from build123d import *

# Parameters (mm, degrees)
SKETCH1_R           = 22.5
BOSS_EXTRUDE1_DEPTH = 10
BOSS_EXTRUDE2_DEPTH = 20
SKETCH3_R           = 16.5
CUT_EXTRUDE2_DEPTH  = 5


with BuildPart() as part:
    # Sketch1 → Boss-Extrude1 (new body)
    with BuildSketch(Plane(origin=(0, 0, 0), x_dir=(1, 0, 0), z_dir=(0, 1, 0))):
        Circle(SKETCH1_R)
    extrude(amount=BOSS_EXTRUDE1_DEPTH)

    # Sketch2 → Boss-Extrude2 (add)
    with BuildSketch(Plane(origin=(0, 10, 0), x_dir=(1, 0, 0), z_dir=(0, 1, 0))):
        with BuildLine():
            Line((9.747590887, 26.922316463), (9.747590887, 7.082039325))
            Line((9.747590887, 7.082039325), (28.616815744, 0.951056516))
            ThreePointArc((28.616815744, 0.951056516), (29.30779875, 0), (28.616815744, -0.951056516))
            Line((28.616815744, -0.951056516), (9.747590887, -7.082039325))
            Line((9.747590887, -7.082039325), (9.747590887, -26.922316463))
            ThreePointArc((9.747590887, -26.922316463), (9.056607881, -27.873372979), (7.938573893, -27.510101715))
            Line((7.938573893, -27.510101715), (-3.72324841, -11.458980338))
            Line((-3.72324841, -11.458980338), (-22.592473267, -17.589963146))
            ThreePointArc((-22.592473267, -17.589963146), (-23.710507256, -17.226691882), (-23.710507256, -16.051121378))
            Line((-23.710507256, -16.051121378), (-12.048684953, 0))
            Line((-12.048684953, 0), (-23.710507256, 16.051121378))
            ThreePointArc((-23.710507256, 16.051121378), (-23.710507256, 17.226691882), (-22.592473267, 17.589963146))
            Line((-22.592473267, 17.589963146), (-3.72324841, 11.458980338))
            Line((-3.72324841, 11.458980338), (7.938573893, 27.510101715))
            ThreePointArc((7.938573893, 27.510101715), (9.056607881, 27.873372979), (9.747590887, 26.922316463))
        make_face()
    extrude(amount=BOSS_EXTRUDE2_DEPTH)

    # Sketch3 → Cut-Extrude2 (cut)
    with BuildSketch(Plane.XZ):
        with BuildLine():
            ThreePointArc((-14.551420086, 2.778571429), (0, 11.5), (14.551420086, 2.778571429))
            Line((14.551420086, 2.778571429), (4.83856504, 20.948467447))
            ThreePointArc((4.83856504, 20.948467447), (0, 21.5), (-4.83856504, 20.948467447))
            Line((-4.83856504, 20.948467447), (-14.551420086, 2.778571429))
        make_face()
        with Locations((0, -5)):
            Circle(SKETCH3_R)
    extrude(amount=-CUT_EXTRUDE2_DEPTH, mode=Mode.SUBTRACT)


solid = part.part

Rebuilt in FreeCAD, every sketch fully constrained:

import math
import FreeCAD as App
import Part
import Sketcher
Q = App.Units.Quantity

doc = App.newDocument("Part")
body = doc.addObject("PartDesign::Body", "Body")

# Sketch on XZ plane
sketch1 = body.newObject("Sketcher::SketchObject", "Sketch")
sketch1.AttachmentSupport = (doc.getObject("XZ_Plane"), [""])
sketch1.MapMode = "FlatFace"
sketch1.addGeometry(Part.Circle(App.Vector(0, 0, 0), App.Vector(0, 0, 1), 22.5), False)
sketch1.addConstraint([
    Sketcher.Constraint("Coincident", 0, 3, -1, 1),
    Sketcher.Constraint("Diameter", 0, Q("45 mm")),
])
pad1 = body.newObject("PartDesign::Pad", "Pad")
pad1.Profile = sketch1
pad1.Length = 10
pad1.Reversed = True

# Sketch on XZ plane
sketch2 = body.newObject("Sketcher::SketchObject", "Sketch001")
sketch2.AttachmentSupport = (doc.getObject("XZ_Plane"), [""])
sketch2.MapMode = "FlatFace"
sketch2.AttachmentOffset = App.Placement(App.Vector(0, 0, -10), App.Rotation())
sketch2.addGeometry([
    Part.LineSegment(App.Vector(9.747591, -7.082039, 0), App.Vector(9.747591, -26.922316, 0)),  # 0
    Part.ArcOfCircle(Part.Circle(App.Vector(8.747591, -26.922316, 0), App.Vector(0, 0, 1), 1), math.radians(-144), math.radians(0)),  # 1
    Part.LineSegment(App.Vector(7.938574, -27.510102, 0), App.Vector(-3.723248, -11.45898, 0)),  # 2
    Part.LineSegment(App.Vector(-3.723248, -11.45898, 0), App.Vector(-22.592473, -17.589963, 0)),  # 3
    Part.ArcOfCircle(Part.Circle(App.Vector(-22.90149, -16.638907, 0), App.Vector(0, 0, 1), 1), math.radians(144), math.radians(288)),  # 4
    Part.LineSegment(App.Vector(-23.710507, -16.051121, 0), App.Vector(-12.048685, 0, 0)),  # 5
    Part.LineSegment(App.Vector(-12.048685, 0, 0), App.Vector(-23.710507, 16.051121, 0)),  # 6
    Part.ArcOfCircle(Part.Circle(App.Vector(-22.90149, 16.638907, 0), App.Vector(0, 0, 1), 1), math.radians(72), math.radians(216)),  # 7
    Part.LineSegment(App.Vector(-22.592473, 17.589963, 0), App.Vector(-3.723248, 11.45898, 0)),  # 8
    Part.LineSegment(App.Vector(-3.723248, 11.45898, 0), App.Vector(7.938574, 27.510102, 0)),  # 9
    Part.ArcOfCircle(Part.Circle(App.Vector(8.747591, 26.922316, 0), App.Vector(0, 0, 1), 1), math.radians(0), math.radians(144)),  # 10
    Part.LineSegment(App.Vector(9.747591, 26.922316, 0), App.Vector(9.747591, 7.082039, 0)),  # 11
    Part.LineSegment(App.Vector(9.747591, 7.082039, 0), App.Vector(28.616816, 0.951057, 0)),  # 12
    Part.ArcOfCircle(Part.Circle(App.Vector(28.307799, 0, 0), App.Vector(0, 0, 1), 1), math.radians(-72), math.radians(72)),  # 13
    Part.LineSegment(App.Vector(28.616816, -0.951057, 0), App.Vector(9.747591, -7.082039, 0)),  # 14
], False)
sketch2.addConstraint([
    Sketcher.Constraint("Tangent", 0, 2, 1, 2),
    Sketcher.Constraint("Tangent", 1, 1, 2, 1),
    Sketcher.Constraint("Coincident", 2, 2, 3, 1),
    Sketcher.Constraint("Tangent", 3, 2, 4, 2),
    Sketcher.Constraint("Tangent", 4, 1, 5, 1),
    Sketcher.Constraint("Coincident", 5, 2, 6, 1),
    Sketcher.Constraint("Tangent", 6, 2, 7, 2),
    Sketcher.Constraint("Tangent", 7, 1, 8, 1),
    Sketcher.Constraint("Coincident", 8, 2, 9, 1),
    Sketcher.Constraint("Tangent", 9, 2, 10, 2),
    Sketcher.Constraint("Tangent", 10, 1, 11, 1),
    Sketcher.Constraint("Coincident", 11, 2, 12, 1),
    Sketcher.Constraint("Tangent", 12, 2, 13, 2),
    Sketcher.Constraint("Tangent", 13, 1, 14, 1),
    Sketcher.Constraint("Coincident", 14, 2, 0, 1),
    Sketcher.Constraint("Vertical", 0),
    Sketcher.Constraint("Vertical", 11),
    Sketcher.Constraint("Equal", 1, 4),
    Sketcher.Constraint("Equal", 4, 7),
    Sketcher.Constraint("Equal", 7, 10),
    Sketcher.Constraint("Equal", 10, 13),
    Sketcher.Constraint("Symmetric", 4, 3, 7, 3, -1),
    Sketcher.Constraint("Symmetric", 1, 3, 10, 3, -1),
    Sketcher.Constraint("Symmetric", 2, 2, 8, 2, -1),
    Sketcher.Constraint("Symmetric", 12, 2, 13, 1, -1),
    Sketcher.Constraint("PointOnObject", 5, 2, -1),
    Sketcher.Constraint("Parallel", 2, 6),
    Sketcher.Constraint("Parallel", 8, 12),
    Sketcher.Constraint("Equal", 2, 3),
    Sketcher.Constraint("Equal", 3, 5),
    Sketcher.Constraint("Equal", 9, 12),
    Sketcher.Constraint("Radius", 1, Q("1 mm")),
    Sketcher.Constraint("Angle", 2, Q("126 deg")),
    Sketcher.Constraint("Angle", 3, Q("-162 deg")),
    Sketcher.Constraint("DistanceX", -1, 1, 13, 3, Q("28.307799 mm")),
    Sketcher.Constraint("DistanceY", 1, 1, -1, 1, Q("27.510102 mm")),
])
pad2 = body.newObject("PartDesign::Pad", "Pad001")
pad2.Profile = sketch2
pad2.Length = 20
pad2.Reversed = True

# Sketch on XZ plane
sketch3 = body.newObject("Sketcher::SketchObject", "Sketch002")
sketch3.AttachmentSupport = (doc.getObject("XZ_Plane"), [""])
sketch3.MapMode = "FlatFace"
sketch3.addGeometry([
    Part.LineSegment(App.Vector(14.55142, 2.778571, 0), App.Vector(4.838565, 20.948467, 0)),
    Part.ArcOfCircle(Part.Circle(App.Vector(0, 0, 0), App.Vector(0, 0, 1), 21.5), math.radians(76.994209), math.radians(103.005791)),
    Part.LineSegment(App.Vector(-4.838565, 20.948467, 0), App.Vector(-14.55142, 2.778571, 0)),
    Part.ArcOfCircle(Part.Circle(App.Vector(0, -5, 0), App.Vector(0, 0, 1), 16.5), math.radians(151.872932), math.radians(388.127068)),
], False)
sketch3.addConstraint([
    Sketcher.Constraint("Coincident", 0, 2, 1, 1),
    Sketcher.Constraint("Coincident", 1, 2, 2, 1),
    Sketcher.Constraint("Tangent", 2, 2, 3, 1),
    Sketcher.Constraint("Tangent", 3, 2, 0, 1),
    Sketcher.Constraint("Coincident", 1, 3, -1, 1),
    Sketcher.Constraint("Symmetric", 2, 2, 3, 2, -2),
    Sketcher.Constraint("Radius", 1, Q("21.5 mm")),
    Sketcher.Constraint("Radius", 3, Q("16.5 mm")),
    Sketcher.Constraint("DistanceY", 3, 3, -1, 1, Q("5 mm")),
    Sketcher.Constraint("DistanceX", 2, 2, -1, 1, Q("14.55142 mm")),
])
pocket1 = body.newObject("PartDesign::Pocket", "Pocket")
pocket1.Profile = sketch3
pocket1.Length = 5

doc.recompute()
